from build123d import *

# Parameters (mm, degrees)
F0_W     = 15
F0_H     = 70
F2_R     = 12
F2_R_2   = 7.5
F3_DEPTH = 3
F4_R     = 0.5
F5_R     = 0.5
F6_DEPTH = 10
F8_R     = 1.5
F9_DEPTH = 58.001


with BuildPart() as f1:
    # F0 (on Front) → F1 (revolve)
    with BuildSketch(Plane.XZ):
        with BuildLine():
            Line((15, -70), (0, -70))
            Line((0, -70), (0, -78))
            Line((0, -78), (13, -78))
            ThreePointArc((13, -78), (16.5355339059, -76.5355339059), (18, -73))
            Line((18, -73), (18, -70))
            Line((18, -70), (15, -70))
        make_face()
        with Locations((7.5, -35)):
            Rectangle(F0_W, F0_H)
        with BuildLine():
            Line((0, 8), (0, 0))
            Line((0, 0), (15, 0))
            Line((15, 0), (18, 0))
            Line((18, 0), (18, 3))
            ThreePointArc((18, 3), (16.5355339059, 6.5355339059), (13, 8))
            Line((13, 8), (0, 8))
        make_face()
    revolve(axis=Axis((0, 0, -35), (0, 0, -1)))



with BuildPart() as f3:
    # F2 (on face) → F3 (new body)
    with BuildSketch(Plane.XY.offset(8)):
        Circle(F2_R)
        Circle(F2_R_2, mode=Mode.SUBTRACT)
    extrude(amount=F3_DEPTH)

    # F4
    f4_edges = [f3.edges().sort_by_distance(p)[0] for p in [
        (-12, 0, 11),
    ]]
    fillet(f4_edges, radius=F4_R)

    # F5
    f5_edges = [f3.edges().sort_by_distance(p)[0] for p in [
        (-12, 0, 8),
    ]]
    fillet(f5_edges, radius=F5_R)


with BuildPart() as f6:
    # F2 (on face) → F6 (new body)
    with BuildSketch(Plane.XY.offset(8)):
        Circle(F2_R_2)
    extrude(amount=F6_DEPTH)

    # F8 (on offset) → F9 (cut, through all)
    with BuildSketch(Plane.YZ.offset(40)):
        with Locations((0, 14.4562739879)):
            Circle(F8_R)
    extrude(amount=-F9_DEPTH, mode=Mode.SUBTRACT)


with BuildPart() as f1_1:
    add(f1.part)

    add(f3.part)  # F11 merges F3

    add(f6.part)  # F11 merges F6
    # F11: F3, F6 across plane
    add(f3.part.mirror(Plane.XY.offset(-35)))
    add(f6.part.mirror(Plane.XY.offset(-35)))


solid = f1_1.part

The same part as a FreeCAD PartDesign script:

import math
import FreeCAD as App
import Part
import Sketcher

V = App.Vector


def edges_at(feature, points):
    """Names of the edges that pass closest to the given points."""
    edges = feature.Shape.Edges
    near = lambda p: min(range(len(edges)), key=lambda i: edges[i].distToShape(Part.Vertex(*p))[0])
    return sorted({f"Edge{near(p) + 1}" for p in points})

doc = App.newDocument("Part")
params = doc.addObject("Spreadsheet::Sheet", "Params")
for row, (alias, value) in enumerate([
    ("sketch1_radius", "5 mm"),
    ("sketch1_width", "13 mm"),
    ("sketch1_width2", "3 mm"),
    ("sketch1_height", "70 mm"),
    ("revolution_angle", "360 deg"),
    ("sketch2_diameter", "24 mm"),
    ("sketch2_diameter2", "15 mm"),
    ("pad1_length", "3 mm"),
    ("fillet_radius", "0.5 mm"),
    ("fillet2_radius", "0.5 mm"),
    ("sketch3_diameter", "15 mm"),
    ("pad2_length", "10 mm"),
    ("sketch4_diameter", "3 mm"),
], start=1):
    params.set(f"A{row}", alias)
    params.set(f"B{row}", "=" + value)
    params.setAlias(f"B{row}", alias)

body = doc.addObject("PartDesign::Body", "Body")

sketch1 = body.newObject("Sketcher::SketchObject", "Sketch")
sketch1.AttachmentSupport = (doc.getObject("XZ_Plane"), [""])
sketch1.MapMode = "FlatFace"
sketch1.addGeometry([
    Part.LineSegment(V(0, -78, 0), V(13, -78, 0)),
    Part.ArcOfCircle(Part.Circle(V(13, -73, 0), V(0, 0, 1), 5), math.radians(-90), math.radians(0)),
    Part.LineSegment(V(18, -73, 0), V(18, -70, 0)),
    Part.LineSegment(V(18, -70, 0), V(15, -70, 0)),
    Part.LineSegment(V(15, -70, 0), V(15, 0, 0)),
    Part.LineSegment(V(15, 0, 0), V(18, 0, 0)),
    Part.LineSegment(V(18, 0, 0), V(18, 3, 0)),
    Part.ArcOfCircle(Part.Circle(V(13, 3, 0), V(0, 0, 1), 5), math.radians(0), math.radians(90)),
    Part.LineSegment(V(13, 8, 0), V(0, 8, 0)),
    Part.LineSegment(V(0, 8, 0), V(0, -78, 0)),
], False)
sketch1.addConstraint([
    Sketcher.Constraint("Tangent", 0, 2, 1, 1),
    Sketcher.Constraint("Tangent", 1, 2, 2, 1),
    Sketcher.Constraint("Coincident", 2, 2, 3, 1),
    Sketcher.Constraint("Coincident", 3, 2, 4, 1),
    Sketcher.Constraint("Coincident", 4, 2, 5, 1),
    Sketcher.Constraint("Coincident", 5, 2, 6, 1),
    Sketcher.Constraint("Tangent", 6, 2, 7, 1),
    Sketcher.Constraint("Tangent", 7, 2, 8, 1),
    Sketcher.Constraint("Coincident", 8, 2, 9, 1),
    Sketcher.Constraint("Coincident", 9, 2, 0, 1),
    Sketcher.Constraint("Horizontal", 0),
    Sketcher.Constraint("Vertical", 2),
    Sketcher.Constraint("Horizontal", 3),
    Sketcher.Constraint("Vertical", 4),
    Sketcher.Constraint("Horizontal", 5),
    Sketcher.Constraint("Vertical", 6),
    Sketcher.Constraint("Horizontal", 8),
    Sketcher.Constraint("Vertical", 9),
    Sketcher.Constraint("Equal", 1, 7),
    Sketcher.Constraint("PointOnObject", 4, 2, -1),
    Sketcher.Constraint("PointOnObject", 8, 2, -2),
    Sketcher.Constraint("Vertical", 1, 3, 7, 3),
    Sketcher.Constraint("Equal", 5, 2),
    Sketcher.Constraint("Equal", 2, 6),
    Sketcher.Constraint("Radius", 1, 5.0),
    Sketcher.Constraint("DistanceX", 0, 1, 0, 2, 13.0),
    Sketcher.Constraint("DistanceX", 3, 2, 3, 1, 3.0),
    Sketcher.Constraint("DistanceY", 4, 1, 4, 2, 70.0),
])
sketch1.setExpression("Constraints[24]", "Params.sketch1_radius")
sketch1.setExpression("Constraints[25]", "Params.sketch1_width")
sketch1.setExpression("Constraints[26]", "Params.sketch1_width2")
sketch1.setExpression("Constraints[27]", "Params.sketch1_height")
revolution = body.newObject("PartDesign::Revolution", "Revolution")
revolution.Profile = sketch1
revolution.ReferenceAxis = (sketch1, ["V_Axis"])
revolution.setExpression("Angle", "Params.revolution_angle")
body2 = doc.addObject("PartDesign::Body", "Body001")

sketch2 = body2.newObject("Sketcher::SketchObject", "Sketch001")
sketch2.AttachmentSupport = (doc.getObject("XY_Plane001"), [""])
sketch2.MapMode = "FlatFace"
sketch2.AttachmentOffset = App.Placement(V(0, 0, 8), App.Rotation())
sketch2.addGeometry([
    Part.Circle(V(0, 0, 0), V(0, 0, 1), 12),
    Part.Circle(V(0, 0, 0), V(0, 0, 1), 8),
], False)
sketch2.addConstraint([
    Sketcher.Constraint("Coincident", 0, 3, -1, 1),
    Sketcher.Constraint("Coincident", 1, 3, -1, 1),
    Sketcher.Constraint("Diameter", 0, 24.0),
    Sketcher.Constraint("Diameter", 1, 15.0),
])
sketch2.setExpression("Constraints[2]", "Params.sketch2_diameter")
sketch2.setExpression("Constraints[3]", "Params.sketch2_diameter2")
pad1 = body2.newObject("PartDesign::Pad", "Pad")
pad1.Profile = sketch2
pad1.setExpression("Length", "Params.pad1_length")
doc.recompute()

fillet = body2.newObject("PartDesign::Fillet", "Fillet")
fillet.Base = (pad1, edges_at(pad1, [(-12, 0, 11)]))
fillet.setExpression("Radius", "Params.fillet_radius")
doc.recompute()

fillet2 = body2.newObject("PartDesign::Fillet", "Fillet001")
fillet2.Base = (fillet, edges_at(fillet, [(-12, 0, 8)]))
fillet2.setExpression("Radius", "Params.fillet2_radius")
body3 = doc.addObject("PartDesign::Body", "Body002")

sketch3 = body3.newObject("Sketcher::SketchObject", "Sketch002")
sketch3.AttachmentSupport = (doc.getObject("XY_Plane002"), [""])
sketch3.MapMode = "FlatFace"
sketch3.AttachmentOffset = App.Placement(V(0, 0, 8), App.Rotation())
sketch3.addGeometry(Part.Circle(V(0, 0, 0), V(0, 0, 1), 8), False)
sketch3.addConstraint([
    Sketcher.Constraint("Coincident", 0, 3, -1, 1),
    Sketcher.Constraint("Diameter", 0, 15.0),
])
sketch3.setExpression("Constraints[1]", "Params.sketch3_diameter")
pad2 = body3.newObject("PartDesign::Pad", "Pad001")
pad2.Profile = sketch3
pad2.setExpression("Length", "Params.pad2_length")

sketch4 = body3.newObject("Sketcher::SketchObject", "Sketch003")
sketch4.AttachmentSupport = (doc.getObject("YZ_Plane002"), [""])
sketch4.MapMode = "FlatFace"
sketch4.AttachmentOffset = App.Placement(V(0, 0, 40), App.Rotation())
sketch4.addGeometry(Part.Circle(V(0, 14.5, 0), V(0, 0, 1), 1.5), False)
sketch4.addConstraint([
    Sketcher.Constraint("PointOnObject", 0, 3, -2),
    Sketcher.Constraint("Diameter", 0, 3.0),
    Sketcher.Constraint("DistanceY", -1, 1, 0, 3, 14.456274),
])
sketch4.setExpression("Constraints[1]", "Params.sketch4_diameter")
pocket1 = body3.newObject("PartDesign::Pocket", "Pocket")
pocket1.Profile = sketch4
pocket1.Type = "ThroughAll"
doc.recompute()

body4 = doc.addObject("PartDesign::Body", "Body003")
body4.BaseFeature = body2
boolean = body.newObject("PartDesign::Boolean", "Boolean")
boolean.Type = "Fuse"
boolean.addObjects([body4])
doc.recompute()

body5 = doc.addObject("PartDesign::Body", "Body004")
body5.BaseFeature = body3
boolean2 = body.newObject("PartDesign::Boolean", "Boolean001")
boolean2.Type = "Fuse"
boolean2.addObjects([body5])
doc.recompute()

mirroring = doc.addObject("Part::Mirroring", "Mirroring")
mirroring.Source = body2
mirroring.Base = V(0, 0, -35)
mirroring.Normal = V(0, 0, 1)
body6 = doc.addObject("PartDesign::Body", "Body005")
body6.BaseFeature = mirroring
boolean3 = body.newObject("PartDesign::Boolean", "Boolean002")
boolean3.Type = "Fuse"
boolean3.addObjects([body6])
doc.recompute()

mirroring2 = doc.addObject("Part::Mirroring", "Mirroring001")
mirroring2.Source = body3
mirroring2.Base = V(0, 0, -35)
mirroring2.Normal = V(0, 0, 1)
body7 = doc.addObject("PartDesign::Body", "Body006")
body7.BaseFeature = mirroring2
boolean4 = body.newObject("PartDesign::Boolean", "Boolean003")
boolean4.Type = "Fuse"
boolean4.addObjects([body7])
doc.recompute()
mirroring.Visibility = False
mirroring2.Visibility = False

doc.recompute()
